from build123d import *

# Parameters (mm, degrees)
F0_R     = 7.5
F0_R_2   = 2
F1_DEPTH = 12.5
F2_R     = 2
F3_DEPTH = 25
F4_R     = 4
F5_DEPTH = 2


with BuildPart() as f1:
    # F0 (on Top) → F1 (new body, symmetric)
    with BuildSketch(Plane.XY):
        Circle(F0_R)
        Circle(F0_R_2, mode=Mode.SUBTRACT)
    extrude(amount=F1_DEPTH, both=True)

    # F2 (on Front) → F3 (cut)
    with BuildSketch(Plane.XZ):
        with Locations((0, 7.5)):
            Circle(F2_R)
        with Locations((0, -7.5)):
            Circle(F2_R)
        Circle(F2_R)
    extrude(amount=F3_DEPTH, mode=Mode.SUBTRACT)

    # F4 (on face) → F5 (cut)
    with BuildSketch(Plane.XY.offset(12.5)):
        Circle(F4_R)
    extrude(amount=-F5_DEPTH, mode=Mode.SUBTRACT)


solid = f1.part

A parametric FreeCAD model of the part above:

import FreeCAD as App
import Part
import Sketcher

doc = App.newDocument("Part")
body = doc.addObject("PartDesign::Body", "Body")

# Sketch on XY plane
sketch1 = body.newObject("Sketcher::SketchObject", "Sketch")
sketch1.AttachmentSupport = (doc.getObject("XY_Plane"), [""])
sketch1.MapMode = "FlatFace"
sketch1.addGeometry([
    Part.Circle(App.Vector(0, 0, 0), App.Vector(0, 0, 1), 7.5),
    Part.Circle(App.Vector(0, 0, 0), App.Vector(0, 0, 1), 2),
], False)
sketch1.addConstraint([
    Sketcher.Constraint("Coincident", 0, 3, -1, 1),
    Sketcher.Constraint("Coincident", 1, 3, -1, 1),
    Sketcher.Constraint("Diameter", 0, 15.0),
    Sketcher.Constraint("Diameter", 1, 4.0),
])
pad1 = body.newObject("PartDesign::Pad", "Pad")
pad1.Profile = sketch1
pad1.Length = 25
pad1.Midplane = True

# Sketch on XZ plane
sketch2 = body.newObject("Sketcher::SketchObject", "Sketch001")
sketch2.AttachmentSupport = (doc.getObject("XZ_Plane"), [""])
sketch2.MapMode = "FlatFace"
sketch2.addGeometry([
    Part.Circle(App.Vector(0, 7.5, 0), App.Vector(0, 0, 1), 2),
    Part.Circle(App.Vector(0, -7.5, 0), App.Vector(0, 0, 1), 2),
    Part.Circle(App.Vector(0, 0, 0), App.Vector(0, 0, 1), 2),
], False)
sketch2.addConstraint([
    Sketcher.Constraint("Coincident", 2, 3, -1, 1),
    Sketcher.Constraint("Equal", 0, 1),
    Sketcher.Constraint("Equal", 1, 2),
    Sketcher.Constraint("Symmetric", 0, 3, 1, 3, -1, 1),
    Sketcher.Constraint("PointOnObject", 0, 3, -2),
    Sketcher.Constraint("Diameter", 0, 4.0),
    Sketcher.Constraint("DistanceY", 1, 3, 0, 3, 15.0),
])
pocket1 = body.newObject("PartDesign::Pocket", "Pocket")
pocket1.Profile = sketch2
pocket1.Length = 25
pocket1.Reversed = True

# Sketch on XY plane
sketch3 = body.newObject("Sketcher::SketchObject", "Sketch002")
sketch3.AttachmentSupport = (doc.getObject("XY_Plane"), [""])
sketch3.MapMode = "FlatFace"
sketch3.AttachmentOffset = App.Placement(App.Vector(0, 0, 12.5), App.Rotation())
sketch3.addGeometry(Part.Circle(App.Vector(0, 0, 0), App.Vector(0, 0, 1), 4), False)
sketch3.addConstraint([
    Sketcher.Constraint("Coincident", 0, 3, -1, 1),
    Sketcher.Constraint("Diameter", 0, 8.0),
])
pocket2 = body.newObject("PartDesign::Pocket", "Pocket001")
pocket2.Profile = sketch3
pocket2.Length = 2

doc.recompute()
